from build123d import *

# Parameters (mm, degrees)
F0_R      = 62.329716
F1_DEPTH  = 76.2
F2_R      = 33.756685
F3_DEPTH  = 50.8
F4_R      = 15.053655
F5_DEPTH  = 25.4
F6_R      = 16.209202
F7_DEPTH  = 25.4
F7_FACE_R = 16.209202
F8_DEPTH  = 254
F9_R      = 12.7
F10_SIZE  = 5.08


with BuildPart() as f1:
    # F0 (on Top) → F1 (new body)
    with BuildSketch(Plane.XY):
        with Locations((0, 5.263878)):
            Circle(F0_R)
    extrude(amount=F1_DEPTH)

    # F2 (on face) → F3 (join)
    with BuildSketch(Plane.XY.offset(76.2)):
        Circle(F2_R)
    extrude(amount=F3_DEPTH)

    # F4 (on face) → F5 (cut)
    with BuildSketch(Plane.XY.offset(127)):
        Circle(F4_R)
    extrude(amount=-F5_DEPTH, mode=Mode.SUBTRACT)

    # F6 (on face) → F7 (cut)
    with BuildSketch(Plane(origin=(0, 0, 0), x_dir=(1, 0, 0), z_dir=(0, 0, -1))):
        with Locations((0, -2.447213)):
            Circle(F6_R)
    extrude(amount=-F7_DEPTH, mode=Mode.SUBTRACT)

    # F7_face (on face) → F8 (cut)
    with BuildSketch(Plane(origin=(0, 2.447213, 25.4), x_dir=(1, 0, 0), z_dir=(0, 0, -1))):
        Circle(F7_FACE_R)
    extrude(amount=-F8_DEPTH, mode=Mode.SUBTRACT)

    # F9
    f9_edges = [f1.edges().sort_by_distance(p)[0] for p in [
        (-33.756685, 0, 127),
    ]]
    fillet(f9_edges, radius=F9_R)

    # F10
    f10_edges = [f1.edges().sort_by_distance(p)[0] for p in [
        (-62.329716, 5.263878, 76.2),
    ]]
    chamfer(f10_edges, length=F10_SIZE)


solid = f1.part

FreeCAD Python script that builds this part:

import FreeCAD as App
import Part
import Sketcher
from FreeCAD import Vector
Q = App.Units.Quantity


def edges_at(feature, points):
    """Names of the edges that pass closest to the given points."""
    edges = feature.Shape.Edges
    near = lambda p: min(range(len(edges)), key=lambda i: edges[i].distToShape(Part.Vertex(*p))[0])
    return sorted({f"Edge{near(p) + 1}" for p in points})

doc = App.newDocument("Part")
body = doc.addObject("PartDesign::Body", "Body")

# Sketch on XY plane
sketch1 = body.newObject("Sketcher::SketchObject", "Sketch")
sketch1.AttachmentSupport = (doc.getObject("XY_Plane"), [""])
sketch1.MapMode = "FlatFace"
sketch1.addGeometry(Part.Circle(Vector(0, 5, 0), Vector(0, 0, 1), 62), False)
sketch1.addConstraint(Sketcher.Constraint("PointOnObject", 0, 3, -2))
sketch1.addConstraint(Sketcher.Constraint("Diameter", 0, Q("124.659432 mm")))
sketch1.addConstraint(Sketcher.Constraint("DistanceY", -1, 1, 0, 3, Q("5.263878 mm")))
pad1 = body.newObject("PartDesign::Pad", "Pad")
pad1.Profile = sketch1
pad1.Length = Q("3 in")

# Sketch on XY plane
sketch2 = body.newObject("Sketcher::SketchObject", "Sketch001")
sketch2.AttachmentSupport = (doc.getObject("XY_Plane"), [""])
sketch2.MapMode = "FlatFace"
sketch2.AttachmentOffset = App.Placement(Vector(0, 0, 3 * 25.4), App.Rotation())
sketch2.addGeometry(Part.Circle(Vector(0, 0, 0), Vector(0, 0, 1), 34), False)
sketch2.addConstraint(Sketcher.Constraint("Coincident", 0, 3, -1, 1))
sketch2.addConstraint(Sketcher.Constraint("Diameter", 0, Q("67.51337 mm")))
pad2 = body.newObject("PartDesign::Pad", "Pad001")
pad2.Profile = sketch2
pad2.Length = Q("2 in")

# Sketch on XY plane
sketch3 = body.newObject("Sketcher::SketchObject", "Sketch002")
sketch3.AttachmentSupport = (doc.getObject("XY_Plane"), [""])
sketch3.MapMode = "FlatFace"
sketch3.AttachmentOffset = App.Placement(Vector(0, 0, 5 * 25.4), App.Rotation())
sketch3.addGeometry(Part.Circle(Vector(0, 0, 0), Vector(0, 0, 1), 15), False)
sketch3.addConstraint(Sketcher.Constraint("Coincident", 0, 3, -1, 1))
sketch3.addConstraint(Sketcher.Constraint("Diameter", 0, Q("30.10731 mm")))
pocket1 = body.newObject("PartDesign::Pocket", "Pocket")
pocket1.Profile = sketch3
pocket1.Length = Q("1 in")

# Sketch on XY plane
sketch4 = body.newObject("Sketcher::SketchObject", "Sketch003")
sketch4.AttachmentSupport = (doc.getObject("XY_Plane"), [""])
sketch4.MapMode = "FlatFace"
sketch4.addGeometry(Part.Circle(Vector(0, 2, 0), Vector(0, 0, 1), 16), False)
sketch4.addConstraint(Sketcher.Constraint("PointOnObject", 0, 3, -2))
sketch4.addConstraint(Sketcher.Constraint("Diameter", 0, Q("32.418404 mm")))
sketch4.addConstraint(Sketcher.Constraint("DistanceY", -1, 1, 0, 3, Q("2.447213 mm")))
pocket2 = body.newObject("PartDesign::Pocket", "Pocket001")
pocket2.Profile = sketch4
pocket2.Length = Q("1 in")
pocket2.Reversed = True

# Sketch on XY plane
sketch5 = body.newObject("Sketcher::SketchObject", "Sketch004")
sketch5.AttachmentSupport = (doc.getObject("XY_Plane"), [""])
sketch5.MapMode = "FlatFace"
sketch5.AttachmentOffset = App.Placement(Vector(0, 0, 1 * 25.4), App.Rotation())
sketch5.addGeometry(Part.Circle(Vector(0, 2, 0), Vector(0, 0, 1), 16), False)
sketch5.addConstraint(Sketcher.Constraint("PointOnObject", 0, 3, -2))
sketch5.addConstraint(Sketcher.Constraint("Diameter", 0, Q("32.418404 mm")))
sketch5.addConstraint(Sketcher.Constraint("DistanceY", -1, 1, 0, 3, Q("2.447213 mm")))
pocket3 = body.newObject("PartDesign::Pocket", "Pocket002")
pocket3.Profile = sketch5
pocket3.Length = Q("10 in")
pocket3.Reversed = True
doc.recompute()

fillet = body.newObject("PartDesign::Fillet", "Fillet")
fillet.Base = (pocket3, edges_at(pocket3, [(-33.757, 0, 127)]))
fillet.Radius = Q("0.5 in")
doc.recompute()

chamfer = body.newObject("PartDesign::Chamfer", "Chamfer")
chamfer.Base = (fillet, edges_at(fillet, [(-62.33, 5.264, 76.2)]))
chamfer.Size = Q("0.2 in")

doc.recompute()
